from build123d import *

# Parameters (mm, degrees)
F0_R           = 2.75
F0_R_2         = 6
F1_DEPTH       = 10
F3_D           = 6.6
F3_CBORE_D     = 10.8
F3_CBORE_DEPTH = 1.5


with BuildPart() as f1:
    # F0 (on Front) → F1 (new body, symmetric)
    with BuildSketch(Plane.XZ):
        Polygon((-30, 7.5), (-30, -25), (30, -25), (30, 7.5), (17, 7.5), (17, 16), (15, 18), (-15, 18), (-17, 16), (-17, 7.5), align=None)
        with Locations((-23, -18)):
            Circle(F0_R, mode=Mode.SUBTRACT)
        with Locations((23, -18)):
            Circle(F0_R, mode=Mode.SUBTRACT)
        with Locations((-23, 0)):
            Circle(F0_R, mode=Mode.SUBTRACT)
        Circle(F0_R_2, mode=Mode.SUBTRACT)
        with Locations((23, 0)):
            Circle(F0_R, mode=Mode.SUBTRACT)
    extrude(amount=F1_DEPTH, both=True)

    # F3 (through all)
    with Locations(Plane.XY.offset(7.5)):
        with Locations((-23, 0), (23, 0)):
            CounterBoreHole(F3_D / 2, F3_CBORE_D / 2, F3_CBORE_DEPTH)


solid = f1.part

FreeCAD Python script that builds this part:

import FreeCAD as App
import Part
import Sketcher
from FreeCAD import Vector
Q = App.Units.Quantity


def add_polygon(sketch, points):
    """Adds a closed chain of lines whose ends are joined by coincident constraints."""
    first, n = sketch.GeometryCount, len(points)
    for a, b in zip(points, points[1:] + points[:1]):
        sketch.addGeometry(Part.LineSegment(App.Vector(*a, 0), App.Vector(*b, 0)), False)
    for i in range(n):
        sketch.addConstraint(Sketcher.Constraint("Coincident", first + i, 2, first + (i + 1) % n, 1))

doc = App.newDocument("Part")
body = doc.addObject("PartDesign::Body", "Body")

sketch1 = doc.addObject("Sketcher::SketchObject", "Sketch")
body.addObject(sketch1)
sketch1.AttachmentSupport = (doc.XZ_Plane, [""])
sketch1.MapMode = "FlatFace"
add_polygon(sketch1, [(-30, 7.5), (-30, -25), (30, -25), (30, 7.5), (17, 7.5), (17, 16), (15, 18), (-15, 18), (-17, 16), (-17, 7.5)])
sketch1.addGeometry(Part.Circle(Vector(-23, -18, 0), Vector(0, 0, 1), 2.8), False)
sketch1.addGeometry(Part.Circle(Vector(23, -18, 0), Vector(0, 0, 1), 2.8), False)
sketch1.addGeometry(Part.Circle(Vector(-23, 0, 0), Vector(0, 0, 1), 2.8), False)
sketch1.addGeometry(Part.Circle(Vector(0, 0, 0), Vector(0, 0, 1), 6), False)
sketch1.addGeometry(Part.Circle(Vector(23, 0, 0), Vector(0, 0, 1), 2.8), False)
sketch1.addConstraint(Sketcher.Constraint("Vertical", 0))
sketch1.addConstraint(Sketcher.Constraint("Horizontal", 1))
sketch1.addConstraint(Sketcher.Constraint("Vertical", 2))
sketch1.addConstraint(Sketcher.Constraint("Horizontal", 3))
sketch1.addConstraint(Sketcher.Constraint("Vertical", 4))
sketch1.addConstraint(Sketcher.Constraint("Horizontal", 6))
sketch1.addConstraint(Sketcher.Constraint("Vertical", 8))
sketch1.addConstraint(Sketcher.Constraint("Horizontal", 9))
sketch1.addConstraint(Sketcher.Constraint("Coincident", 13, 3, -1, 1))
sketch1.addConstraint(Sketcher.Constraint("Equal", 10, 11))
sketch1.addConstraint(Sketcher.Constraint("Equal", 11, 12))
sketch1.addConstraint(Sketcher.Constraint("Equal", 12, 14))
sketch1.addConstraint(Sketcher.Constraint("Symmetric", 12, 3, 14, 3, -1, 1))
sketch1.addConstraint(Sketcher.Constraint("Symmetric", 10, 3, 11, 3, -2))
sketch1.addConstraint(Sketcher.Constraint("Symmetric", 4, 2, 7, 2, -2))
sketch1.addConstraint(Sketcher.Constraint("Symmetric", 2, 2, 9, 2, -2))
sketch1.addConstraint(Sketcher.Constraint("PointOnObject", 12, 3, -1))
sketch1.addConstraint(Sketcher.Constraint("Perpendicular", 5, 7))
sketch1.addConstraint(Sketcher.Constraint("Vertical", 10, 3, 12, 3))
sketch1.addConstraint(Sketcher.Constraint("Equal", 5, 7))
sketch1.addConstraint(Sketcher.Constraint("Diameter", 13, Q("12 mm")))
sketch1.addConstraint(Sketcher.Constraint("Diameter", 10, Q("5.5 mm")))
sketch1.addConstraint(Sketcher.Constraint("DistanceX", 1, 1, 1, 2, Q("60 mm")))
sketch1.addConstraint(Sketcher.Constraint("DistanceX", 3, 2, 3, 1, Q("13 mm")))
sketch1.addConstraint(Sketcher.Constraint("DistanceX", 6, 2, 6, 1, Q("30 mm")))
sketch1.addConstraint(Sketcher.Constraint("DistanceY", 0, 2, 0, 1, Q("32.5 mm")))
sketch1.addConstraint(Sketcher.Constraint("DistanceY", 4, 1, 4, 2, Q("8.5 mm")))
sketch1.addConstraint(Sketcher.Constraint("DistanceX", 10, 3, -1, 1, Q("23 mm")))
sketch1.addConstraint(Sketcher.Constraint("DistanceY", 10, 3, -1, 1, Q("18 mm")))
sketch1.addConstraint(Sketcher.Constraint("DistanceY", 0, 2, -1, 1, Q("25 mm")))
pad1 = doc.addObject("PartDesign::Pad", "Pad")
body.addObject(pad1)
pad1.Profile = sketch1
pad1.Length = 20
pad1.Midplane = True

sketch2 = doc.addObject("Sketcher::SketchObject", "Sketch001")
body.addObject(sketch2)
sketch2.AttachmentSupport = (doc.XY_Plane, [""])
sketch2.MapMode = "FlatFace"
sketch2.AttachmentOffset = App.Placement(Vector(0, 0, 7.5), App.Rotation())
sketch2.addGeometry(Part.Circle(Vector(-23, 0, 0), Vector(0, 0, 1), 3.3), False)
sketch2.addGeometry(Part.Circle(Vector(23, 0, 0), Vector(0, 0, 1), 3.3), False)
sketch2.addConstraint(Sketcher.Constraint("Equal", 0, 1))
sketch2.addConstraint(Sketcher.Constraint("Symmetric", 0, 3, 1, 3, -1, 1))
sketch2.addConstraint(Sketcher.Constraint("PointOnObject", 0, 3, -1))
sketch2.addConstraint(Sketcher.Constraint("Diameter", 0, Q("6.6 mm")))
sketch2.addConstraint(Sketcher.Constraint("DistanceX", 0, 3, -1, 1, Q("23 mm")))
doc.recompute()
hole = doc.addObject("PartDesign::Hole", "Hole")
body.addObject(hole)
hole.Profile = sketch2
hole.ThreadType = "None"
hole.Diameter = 6.6
hole.DepthType = "ThroughAll"
hole.HoleCutType = "Counterbore"
hole.HoleCutDiameter = 10.8
hole.HoleCutDepth = 1.5

doc.recompute()
